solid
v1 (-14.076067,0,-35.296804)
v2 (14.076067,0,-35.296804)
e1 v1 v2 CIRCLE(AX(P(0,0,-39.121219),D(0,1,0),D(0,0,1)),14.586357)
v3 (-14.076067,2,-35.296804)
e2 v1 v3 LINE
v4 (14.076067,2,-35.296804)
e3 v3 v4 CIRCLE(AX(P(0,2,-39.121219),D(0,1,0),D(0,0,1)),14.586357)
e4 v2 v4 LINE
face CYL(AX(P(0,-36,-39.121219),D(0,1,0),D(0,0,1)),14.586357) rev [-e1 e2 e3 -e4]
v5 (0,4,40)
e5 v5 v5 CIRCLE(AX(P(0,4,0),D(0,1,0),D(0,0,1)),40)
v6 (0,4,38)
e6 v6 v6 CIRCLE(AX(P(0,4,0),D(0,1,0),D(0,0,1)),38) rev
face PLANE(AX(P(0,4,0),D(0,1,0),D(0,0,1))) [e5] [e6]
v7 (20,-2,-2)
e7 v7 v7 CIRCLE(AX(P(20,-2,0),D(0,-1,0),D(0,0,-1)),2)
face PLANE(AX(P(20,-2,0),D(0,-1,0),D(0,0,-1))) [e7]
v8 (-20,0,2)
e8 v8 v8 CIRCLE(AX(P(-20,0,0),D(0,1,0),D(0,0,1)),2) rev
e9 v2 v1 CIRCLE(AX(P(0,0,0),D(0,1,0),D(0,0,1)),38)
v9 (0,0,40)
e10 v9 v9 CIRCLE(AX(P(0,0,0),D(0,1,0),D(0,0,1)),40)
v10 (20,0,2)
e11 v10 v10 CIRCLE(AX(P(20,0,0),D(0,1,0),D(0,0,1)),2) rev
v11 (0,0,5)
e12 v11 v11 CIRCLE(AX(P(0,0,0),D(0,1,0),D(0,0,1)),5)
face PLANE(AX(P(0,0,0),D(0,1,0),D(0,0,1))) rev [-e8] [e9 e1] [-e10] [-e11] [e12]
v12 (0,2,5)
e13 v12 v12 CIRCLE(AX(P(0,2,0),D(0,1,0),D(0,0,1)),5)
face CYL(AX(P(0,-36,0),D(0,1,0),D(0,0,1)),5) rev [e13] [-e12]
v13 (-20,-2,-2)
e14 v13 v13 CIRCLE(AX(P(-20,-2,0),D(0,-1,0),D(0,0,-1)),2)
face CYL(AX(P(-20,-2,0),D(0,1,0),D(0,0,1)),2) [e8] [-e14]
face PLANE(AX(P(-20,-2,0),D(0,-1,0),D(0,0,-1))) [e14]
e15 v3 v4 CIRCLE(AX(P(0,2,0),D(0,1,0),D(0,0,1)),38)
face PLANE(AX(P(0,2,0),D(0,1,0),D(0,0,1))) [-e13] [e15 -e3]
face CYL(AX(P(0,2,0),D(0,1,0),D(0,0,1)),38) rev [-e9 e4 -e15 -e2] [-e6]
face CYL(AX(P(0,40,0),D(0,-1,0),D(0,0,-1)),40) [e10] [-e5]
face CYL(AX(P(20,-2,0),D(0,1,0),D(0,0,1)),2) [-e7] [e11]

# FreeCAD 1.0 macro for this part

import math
import FreeCAD as App
import Part
import Sketcher
from FreeCAD import Vector

doc = App.newDocument("Part")
params = doc.addObject("Spreadsheet::Sheet", "Params")
for row, (alias, value) in enumerate([
    ("sketch1_diameter", "80 mm"),
    ("pad1_length", "40 mm"),
    ("sketch2_diameter", "76 mm"),
    ("pocket1_length", "38 mm"),
    ("sketch3_radius", "38 mm"),
    ("pocket2_length", "38 mm"),
    ("sketch4_diameter", "10 mm"),
    ("pocket3_length", "38 mm"),
    ("sketch5_diameter", "4 mm"),
    ("pad2_length", "2 mm"),
    ("pocket4_length", "36 mm"),
], start=1):
    params.set(f"A{row}", alias)
    params.set(f"B{row}", "=" + value)
    params.setAlias(f"B{row}", alias)

body = doc.addObject("PartDesign::Body", "Body")

# Sketch on XZ plane
sketch1 = doc.addObject("Sketcher::SketchObject", "Sketch")
body.addObject(sketch1)
sketch1.AttachmentSupport = (doc.XZ_Plane, [""])
sketch1.MapMode = "FlatFace"
sketch1.addGeometry(Part.Circle(Vector(0, 0, 0), Vector(0, 0, 1), 40), False)
sketch1.addConstraint([
    Sketcher.Constraint("Coincident", 0, 3, -1, 1),
    Sketcher.Constraint("Diameter", 0, 80.0),
])
sketch1.setExpression("Constraints[1]", "Params.sketch1_diameter")
pad1 = doc.addObject("PartDesign::Pad", "Pad")
body.addObject(pad1)
pad1.Profile = sketch1
pad1.setExpression("Length", "Params.pad1_length")
pad1.Reversed = True

# Sketch on XZ plane
sketch2 = doc.addObject("Sketcher::SketchObject", "Sketch001")
body.addObject(sketch2)
sketch2.AttachmentSupport = (doc.XZ_Plane, [""])
sketch2.MapMode = "FlatFace"
sketch2.AttachmentOffset = App.Placement(Vector(0, 0, -40), App.Rotation())
sketch2.addGeometry(Part.Circle(Vector(0, 0, 0), Vector(0, 0, 1), 38), False)
sketch2.addConstraint([
    Sketcher.Constraint("Coincident", 0, 3, -1, 1),
    Sketcher.Constraint("Diameter", 0, 76.0),
])
sketch2.setExpression("Constraints[1]", "Params.sketch2_diameter")
pocket1 = doc.addObject("PartDesign::Pocket", "Pocket")
body.addObject(pocket1)
pocket1.Profile = sketch2
pocket1.setExpression("Length", "Params.pocket1_length")
pocket1.Reversed = True

# Sketch on XZ plane
sketch3 = doc.addObject("Sketcher::SketchObject", "Sketch002")
body.addObject(sketch3)
sketch3.AttachmentSupport = (doc.XZ_Plane, [""])
sketch3.MapMode = "FlatFace"
sketch3.AttachmentOffset = App.Placement(Vector(0, 0, -2), App.Rotation())
sketch3.addGeometry([
    Part.ArcOfCircle(Part.Circle(Vector(0, -39.121219, 0), Vector(0, 0, 1), 14.586357), math.radians(15.200126), math.radians(164.799874)),
    Part.ArcOfCircle(Part.Circle(Vector(0, 0, 0), Vector(0, 0, 1), 38), math.radians(-111.741695), math.radians(-68.258305)),
], False)
sketch3.addConstraint([
    Sketcher.Constraint("Coincident", 0, 1, 1, 2),
    Sketcher.Constraint("Coincident", 1, 1, 0, 2),
    Sketcher.Constraint("Coincident", 1, 3, -1, 1),
    Sketcher.Constraint("PointOnObject", 0, 3, -2),
    Sketcher.Constraint("Radius", 1, 38.0),
    Sketcher.Constraint("Radius", 0, 14.586357),
    Sketcher.Constraint("DistanceY", 0, 3, -1, 1, 39.121219),
])
sketch3.setExpression("Constraints[4]", "Params.sketch3_radius")
pocket2 = doc.addObject("PartDesign::Pocket", "Pocket001")
body.addObject(pocket2)
pocket2.Profile = sketch3
pocket2.setExpression("Length", "Params.pocket2_length")
pocket2.Reversed = True

# Sketch on XZ plane
sketch4 = doc.addObject("Sketcher::SketchObject", "Sketch003")
body.addObject(sketch4)
sketch4.AttachmentSupport = (doc.XZ_Plane, [""])
sketch4.MapMode = "FlatFace"
sketch4.AttachmentOffset = App.Placement(Vector(0, 0, -2), App.Rotation())
sketch4.addGeometry(Part.Circle(Vector(0, 0, 0), Vector(0, 0, 1), 5), False)
sketch4.addConstraint([
    Sketcher.Constraint("Coincident", 0, 3, -1, 1),
    Sketcher.Constraint("Diameter", 0, 10.0),
])
sketch4.setExpression("Constraints[1]", "Params.sketch4_diameter")
pocket3 = doc.addObject("PartDesign::Pocket", "Pocket002")
body.addObject(pocket3)
pocket3.Profile = sketch4
pocket3.setExpression("Length", "Params.pocket3_length")
pocket3.Reversed = True

# Sketch on XZ plane
sketch5 = doc.addObject("Sketcher::SketchObject", "Sketch004")
body.addObject(sketch5)
sketch5.AttachmentSupport = (doc.XZ_Plane, [""])
sketch5.MapMode = "FlatFace"
sketch5.addGeometry([
    Part.Circle(Vector(-20, 0, 0), Vector(0, 0, 1), 2),
    Part.Circle(Vector(20, 0, 0), Vector(0, 0, 1), 2),
], False)
sketch5.addConstraint([
    Sketcher.Constraint("Equal", 0, 1),
    Sketcher.Constraint("Symmetric", 0, 3, 1, 3, -1, 1),
    Sketcher.Constraint("PointOnObject", 0, 3, -1),
    Sketcher.Constraint("Diameter", 0, 4.0),
    Sketcher.Constraint("DistanceX", 0, 3, -1, 1, 20.0),
])
sketch5.setExpression("Constraints[3]", "Params.sketch5_diameter")
pad2 = doc.addObject("PartDesign::Pad", "Pad001")
body.addObject(pad2)
pad2.Profile = sketch5
pad2.setExpression("Length", "Params.pad2_length")

# Sketch on XZ plane
sketch6 = doc.addObject("Sketcher::SketchObject", "Sketch005")
body.addObject(sketch6)
sketch6.AttachmentSupport = (doc.XZ_Plane, [""])
sketch6.MapMode = "FlatFace"
sketch6.AttachmentOffset = App.Placement(Vector(0, 0, -40), App.Rotation())
sketch6.addGeometry(Part.Circle(Vector(0, 0, 0), Vector(0, 0, 1), 43.496918), False)
sketch6.addConstraint([
    Sketcher.Constraint("Coincident", 0, 3, -1, 1),
    Sketcher.Constraint("Diameter", 0, 86.993836),
])
pocket4 = doc.addObject("PartDesign::Pocket", "Pocket003")
body.addObject(pocket4)
pocket4.Profile = sketch6
pocket4.setExpression("Length", "Params.pocket4_length")
pocket4.Reversed = True

doc.recompute()
